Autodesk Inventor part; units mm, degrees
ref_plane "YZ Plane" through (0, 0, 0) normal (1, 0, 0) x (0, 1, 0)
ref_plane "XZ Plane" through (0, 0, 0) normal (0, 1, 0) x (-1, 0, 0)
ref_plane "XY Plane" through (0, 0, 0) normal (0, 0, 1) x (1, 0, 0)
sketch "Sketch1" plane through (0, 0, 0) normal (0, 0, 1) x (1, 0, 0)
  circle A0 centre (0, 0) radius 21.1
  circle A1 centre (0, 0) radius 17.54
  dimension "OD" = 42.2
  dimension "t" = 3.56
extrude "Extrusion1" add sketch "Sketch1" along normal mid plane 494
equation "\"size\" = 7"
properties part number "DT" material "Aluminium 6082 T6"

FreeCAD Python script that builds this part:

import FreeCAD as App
import Part
import Sketcher
from FreeCAD import Vector

doc = App.newDocument("Part")
params = doc.addObject("Spreadsheet::Sheet", "Params")
for row, (alias, value) in enumerate([
    ("sketch1_diameter", "42.2 mm"),
    ("sketch1_diameter2", "35.08 mm"),
    ("pad1_length", "494 mm"),
], start=1):
    params.set(f"A{row}", alias)
    params.set(f"B{row}", "=" + value)
    params.setAlias(f"B{row}", alias)

body = doc.addObject("PartDesign::Body", "Body")

sketch1 = body.newObject("Sketcher::SketchObject", "Sketch")
sketch1.AttachmentSupport = (doc.getObject("XY_Plane"), [""])
sketch1.MapMode = "FlatFace"
sketch1.addGeometry(Part.Circle(Vector(0, 0, 0), Vector(0, 0, 1), 21), False)
sketch1.addGeometry(Part.Circle(Vector(0, 0, 0), Vector(0, 0, 1), 18), False)
sketch1.addConstraint(Sketcher.Constraint("Coincident", 0, 3, -1, 1))
sketch1.addConstraint(Sketcher.Constraint("Coincident", 1, 3, -1, 1))
sketch1.addConstraint(Sketcher.Constraint("Diameter", 0, 42.2))
sketch1.addConstraint(Sketcher.Constraint("Diameter", 1, 35.08))
sketch1.setExpression("Constraints[2]", "Params.sketch1_diameter")
sketch1.setExpression("Constraints[3]", "Params.sketch1_diameter2")
pad1 = body.newObject("PartDesign::Pad", "Pad")
pad1.Profile = sketch1
pad1.setExpression("Length", "Params.pad1_length")
pad1.Midplane = True

doc.recompute()
